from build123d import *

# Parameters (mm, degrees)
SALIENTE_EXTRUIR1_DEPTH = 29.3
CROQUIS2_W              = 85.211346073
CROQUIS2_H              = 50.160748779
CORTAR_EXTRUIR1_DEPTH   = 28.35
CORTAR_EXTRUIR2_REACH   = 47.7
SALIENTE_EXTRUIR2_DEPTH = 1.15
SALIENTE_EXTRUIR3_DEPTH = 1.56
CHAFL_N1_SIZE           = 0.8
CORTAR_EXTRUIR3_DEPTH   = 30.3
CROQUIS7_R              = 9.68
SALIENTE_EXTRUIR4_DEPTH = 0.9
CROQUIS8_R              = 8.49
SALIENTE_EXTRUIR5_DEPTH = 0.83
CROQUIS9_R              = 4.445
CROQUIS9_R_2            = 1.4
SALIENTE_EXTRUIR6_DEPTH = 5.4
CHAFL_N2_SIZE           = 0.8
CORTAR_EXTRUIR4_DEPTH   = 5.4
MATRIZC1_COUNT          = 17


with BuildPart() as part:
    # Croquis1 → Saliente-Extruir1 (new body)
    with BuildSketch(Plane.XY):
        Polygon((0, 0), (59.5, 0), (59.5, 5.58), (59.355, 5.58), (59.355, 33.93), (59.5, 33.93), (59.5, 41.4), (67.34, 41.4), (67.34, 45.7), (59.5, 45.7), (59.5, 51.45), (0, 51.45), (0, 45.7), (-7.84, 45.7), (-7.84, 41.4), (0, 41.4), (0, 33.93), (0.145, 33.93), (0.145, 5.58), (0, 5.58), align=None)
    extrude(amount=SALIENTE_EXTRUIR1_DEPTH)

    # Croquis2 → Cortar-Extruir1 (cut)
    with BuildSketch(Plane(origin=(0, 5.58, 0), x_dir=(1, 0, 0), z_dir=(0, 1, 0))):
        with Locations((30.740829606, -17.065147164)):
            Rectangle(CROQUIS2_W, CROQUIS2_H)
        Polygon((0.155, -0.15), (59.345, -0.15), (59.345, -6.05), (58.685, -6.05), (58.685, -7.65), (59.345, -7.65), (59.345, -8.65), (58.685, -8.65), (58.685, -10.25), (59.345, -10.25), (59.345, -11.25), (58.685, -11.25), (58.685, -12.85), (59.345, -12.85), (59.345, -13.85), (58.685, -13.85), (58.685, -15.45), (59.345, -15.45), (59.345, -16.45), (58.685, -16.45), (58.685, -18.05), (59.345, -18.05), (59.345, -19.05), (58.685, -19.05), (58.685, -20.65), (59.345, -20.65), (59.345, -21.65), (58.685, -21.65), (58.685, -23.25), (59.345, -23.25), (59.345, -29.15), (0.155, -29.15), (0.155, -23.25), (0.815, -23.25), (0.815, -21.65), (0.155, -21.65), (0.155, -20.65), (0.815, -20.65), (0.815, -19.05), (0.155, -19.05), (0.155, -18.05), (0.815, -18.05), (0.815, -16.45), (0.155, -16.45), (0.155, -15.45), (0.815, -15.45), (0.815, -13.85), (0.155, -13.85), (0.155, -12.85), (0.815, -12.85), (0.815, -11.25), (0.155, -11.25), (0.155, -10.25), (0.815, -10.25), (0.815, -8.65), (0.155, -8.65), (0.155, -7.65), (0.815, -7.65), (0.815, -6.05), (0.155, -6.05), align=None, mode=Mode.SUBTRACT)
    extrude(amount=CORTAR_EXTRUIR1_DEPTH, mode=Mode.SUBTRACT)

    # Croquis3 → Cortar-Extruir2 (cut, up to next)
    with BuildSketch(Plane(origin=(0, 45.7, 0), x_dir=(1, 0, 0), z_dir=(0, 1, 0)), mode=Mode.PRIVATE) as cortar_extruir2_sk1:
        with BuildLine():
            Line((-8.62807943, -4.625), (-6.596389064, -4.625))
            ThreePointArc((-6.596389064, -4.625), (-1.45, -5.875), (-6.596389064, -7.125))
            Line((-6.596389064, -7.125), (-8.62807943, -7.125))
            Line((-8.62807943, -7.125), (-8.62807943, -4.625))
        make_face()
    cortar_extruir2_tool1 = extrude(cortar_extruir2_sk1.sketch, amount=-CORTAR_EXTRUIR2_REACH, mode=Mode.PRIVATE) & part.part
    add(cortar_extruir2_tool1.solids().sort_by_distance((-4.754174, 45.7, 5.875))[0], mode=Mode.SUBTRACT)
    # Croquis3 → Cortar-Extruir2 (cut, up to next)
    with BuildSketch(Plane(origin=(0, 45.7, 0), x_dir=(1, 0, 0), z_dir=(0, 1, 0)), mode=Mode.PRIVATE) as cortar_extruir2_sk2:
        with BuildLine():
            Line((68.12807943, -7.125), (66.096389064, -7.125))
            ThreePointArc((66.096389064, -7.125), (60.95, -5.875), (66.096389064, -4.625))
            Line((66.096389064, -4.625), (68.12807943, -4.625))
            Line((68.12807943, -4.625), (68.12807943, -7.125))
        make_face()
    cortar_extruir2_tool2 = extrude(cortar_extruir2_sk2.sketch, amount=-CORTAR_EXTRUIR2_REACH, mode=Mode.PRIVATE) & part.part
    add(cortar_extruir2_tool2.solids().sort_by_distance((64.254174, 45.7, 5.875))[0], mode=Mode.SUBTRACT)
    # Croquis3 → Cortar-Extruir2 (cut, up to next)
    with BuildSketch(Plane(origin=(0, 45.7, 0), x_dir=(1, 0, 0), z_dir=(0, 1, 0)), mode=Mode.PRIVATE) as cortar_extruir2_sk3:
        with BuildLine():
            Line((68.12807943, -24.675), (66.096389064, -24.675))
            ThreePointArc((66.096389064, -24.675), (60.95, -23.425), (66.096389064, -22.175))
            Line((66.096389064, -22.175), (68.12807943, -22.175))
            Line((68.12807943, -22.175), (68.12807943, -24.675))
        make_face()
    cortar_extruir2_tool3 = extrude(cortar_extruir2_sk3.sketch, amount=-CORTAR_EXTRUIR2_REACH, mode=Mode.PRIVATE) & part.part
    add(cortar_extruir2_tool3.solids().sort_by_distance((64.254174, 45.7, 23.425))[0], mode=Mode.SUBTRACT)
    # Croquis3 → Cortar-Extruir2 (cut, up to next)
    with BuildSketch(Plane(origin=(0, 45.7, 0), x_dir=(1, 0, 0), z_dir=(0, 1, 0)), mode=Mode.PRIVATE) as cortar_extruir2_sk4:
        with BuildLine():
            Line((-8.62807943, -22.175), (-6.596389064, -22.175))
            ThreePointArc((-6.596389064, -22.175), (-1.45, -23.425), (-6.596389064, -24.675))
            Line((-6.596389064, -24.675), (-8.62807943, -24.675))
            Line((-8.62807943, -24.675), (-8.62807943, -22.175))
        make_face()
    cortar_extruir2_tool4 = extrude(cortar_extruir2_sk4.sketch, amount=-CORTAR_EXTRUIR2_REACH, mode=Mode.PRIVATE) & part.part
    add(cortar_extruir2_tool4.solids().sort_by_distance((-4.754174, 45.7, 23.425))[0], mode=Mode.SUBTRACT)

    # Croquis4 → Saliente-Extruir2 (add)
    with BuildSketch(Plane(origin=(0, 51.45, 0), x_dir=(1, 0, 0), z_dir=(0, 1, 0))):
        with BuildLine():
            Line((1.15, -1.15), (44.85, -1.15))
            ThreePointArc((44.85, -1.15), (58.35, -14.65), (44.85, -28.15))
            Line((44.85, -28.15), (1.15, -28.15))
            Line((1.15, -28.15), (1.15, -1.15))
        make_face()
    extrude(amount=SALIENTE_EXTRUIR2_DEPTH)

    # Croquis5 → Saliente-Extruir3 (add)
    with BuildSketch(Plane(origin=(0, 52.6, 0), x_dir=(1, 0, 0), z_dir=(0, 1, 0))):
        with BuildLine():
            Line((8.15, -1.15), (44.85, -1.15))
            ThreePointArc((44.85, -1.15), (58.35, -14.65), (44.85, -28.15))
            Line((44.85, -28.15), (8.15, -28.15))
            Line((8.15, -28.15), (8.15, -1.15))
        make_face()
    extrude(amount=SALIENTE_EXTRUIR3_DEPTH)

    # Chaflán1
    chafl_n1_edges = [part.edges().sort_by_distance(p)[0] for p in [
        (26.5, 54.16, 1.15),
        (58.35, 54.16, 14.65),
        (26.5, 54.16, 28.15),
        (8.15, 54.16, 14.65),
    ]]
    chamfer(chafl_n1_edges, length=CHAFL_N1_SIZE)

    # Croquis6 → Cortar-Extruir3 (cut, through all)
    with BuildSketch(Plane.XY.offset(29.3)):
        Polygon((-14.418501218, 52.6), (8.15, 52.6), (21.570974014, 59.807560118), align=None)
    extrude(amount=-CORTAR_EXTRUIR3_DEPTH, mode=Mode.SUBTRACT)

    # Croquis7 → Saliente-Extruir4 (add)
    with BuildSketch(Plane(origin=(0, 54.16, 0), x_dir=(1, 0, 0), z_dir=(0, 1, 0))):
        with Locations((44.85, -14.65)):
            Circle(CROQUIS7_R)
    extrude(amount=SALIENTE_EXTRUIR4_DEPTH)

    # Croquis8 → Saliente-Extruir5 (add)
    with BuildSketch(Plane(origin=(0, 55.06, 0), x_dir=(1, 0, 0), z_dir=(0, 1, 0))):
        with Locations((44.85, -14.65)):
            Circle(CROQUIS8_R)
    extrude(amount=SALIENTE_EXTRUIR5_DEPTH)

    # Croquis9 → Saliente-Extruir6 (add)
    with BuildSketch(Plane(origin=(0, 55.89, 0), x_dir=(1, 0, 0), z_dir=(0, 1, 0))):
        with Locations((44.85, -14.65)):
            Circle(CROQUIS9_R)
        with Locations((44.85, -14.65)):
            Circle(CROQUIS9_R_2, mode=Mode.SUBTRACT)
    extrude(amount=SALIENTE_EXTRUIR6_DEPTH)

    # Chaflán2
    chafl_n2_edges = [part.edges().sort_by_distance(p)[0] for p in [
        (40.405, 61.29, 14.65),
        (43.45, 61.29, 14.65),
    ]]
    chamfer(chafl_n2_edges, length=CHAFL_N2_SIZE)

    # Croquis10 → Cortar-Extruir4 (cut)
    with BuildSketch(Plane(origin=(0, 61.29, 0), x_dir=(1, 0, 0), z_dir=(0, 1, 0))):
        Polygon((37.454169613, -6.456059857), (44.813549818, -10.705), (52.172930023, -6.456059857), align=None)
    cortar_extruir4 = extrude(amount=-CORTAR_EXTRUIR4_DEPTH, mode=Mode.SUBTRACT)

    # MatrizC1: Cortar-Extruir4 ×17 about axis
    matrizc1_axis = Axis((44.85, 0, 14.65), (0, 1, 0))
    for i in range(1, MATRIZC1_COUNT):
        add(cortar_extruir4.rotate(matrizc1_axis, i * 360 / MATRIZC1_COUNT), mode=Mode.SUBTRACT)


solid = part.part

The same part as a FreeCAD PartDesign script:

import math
import FreeCAD as App
import Part
import Sketcher
Q = App.Units.Quantity


def edges_at(feature, points):
    """Names of the edges that pass closest to the given points."""
    edges = feature.Shape.Edges
    near = lambda p: min(range(len(edges)), key=lambda i: edges[i].distToShape(Part.Vertex(*p))[0])
    return sorted({f"Edge{near(p) + 1}" for p in points})

doc = App.newDocument("Part")
body = doc.addObject("PartDesign::Body", "Body")

sketch1 = body.newObject("Sketcher::SketchObject", "Sketch")
sketch1.AttachmentSupport = (doc.getObject("XY_Plane"), [""])
sketch1.MapMode = "FlatFace"
sketch1.addGeometry(Part.LineSegment(App.Vector(0, 0, 0), App.Vector(59.5, 0, 0)), False)
sketch1.addGeometry(Part.LineSegment(App.Vector(59.5, 0, 0), App.Vector(59.5, 5.58, 0)), False)
sketch1.addGeometry(Part.LineSegment(App.Vector(59.5, 5.58, 0), App.Vector(59.355, 5.58, 0)), False)
sketch1.addGeometry(Part.LineSegment(App.Vector(59.355, 5.58, 0), App.Vector(59.355, 33.93, 0)), False)
sketch1.addGeometry(Part.LineSegment(App.Vector(59.355, 33.93, 0), App.Vector(59.5, 33.93, 0)), False)
sketch1.addGeometry(Part.LineSegment(App.Vector(59.5, 33.93, 0), App.Vector(59.5, 41.4, 0)), False)
sketch1.addGeometry(Part.LineSegment(App.Vector(59.5, 41.4, 0), App.Vector(67.34, 41.4, 0)), False)
sketch1.addGeometry(Part.LineSegment(App.Vector(67.34, 41.4, 0), App.Vector(67.34, 45.7, 0)), False)
sketch1.addGeometry(Part.LineSegment(App.Vector(67.34, 45.7, 0), App.Vector(59.5, 45.7, 0)), False)
sketch1.addGeometry(Part.LineSegment(App.Vector(59.5, 45.7, 0), App.Vector(59.5, 51.45, 0)), False)
sketch1.addGeometry(Part.LineSegment(App.Vector(59.5, 51.45, 0), App.Vector(0, 51.45, 0)), False)
sketch1.addGeometry(Part.LineSegment(App.Vector(0, 51.45, 0), App.Vector(0, 45.7, 0)), False)
sketch1.addGeometry(Part.LineSegment(App.Vector(0, 45.7, 0), App.Vector(-7.84, 45.7, 0)), False)
sketch1.addGeometry(Part.LineSegment(App.Vector(-7.84, 45.7, 0), App.Vector(-7.84, 41.4, 0)), False)
sketch1.addGeometry(Part.LineSegment(App.Vector(-7.84, 41.4, 0), App.Vector(0, 41.4, 0)), False)
sketch1.addGeometry(Part.LineSegment(App.Vector(0, 41.4, 0), App.Vector(0, 33.93, 0)), False)
sketch1.addGeometry(Part.LineSegment(App.Vector(0, 33.93, 0), App.Vector(0.145, 33.93, 0)), False)
sketch1.addGeometry(Part.LineSegment(App.Vector(0.145, 33.93, 0), App.Vector(0.145, 5.58, 0)), False)
sketch1.addGeometry(Part.LineSegment(App.Vector(0.145, 5.58, 0), App.Vector(0, 5.58, 0)), False)
sketch1.addGeometry(Part.LineSegment(App.Vector(0, 5.58, 0), App.Vector(0, 0, 0)), False)
sketch1.addConstraint(Sketcher.Constraint("Coincident", 0, 2, 1, 1))
sketch1.addConstraint(Sketcher.Constraint("Coincident", 1, 2, 2, 1))
sketch1.addConstraint(Sketcher.Constraint("Coincident", 2, 2, 3, 1))
sketch1.addConstraint(Sketcher.Constraint("Coincident", 3, 2, 4, 1))
sketch1.addConstraint(Sketcher.Constraint("Coincident", 4, 2, 5, 1))
sketch1.addConstraint(Sketcher.Constraint("Coincident", 5, 2, 6, 1))
sketch1.addConstraint(Sketcher.Constraint("Coincident", 6, 2, 7, 1))
sketch1.addConstraint(Sketcher.Constraint("Coincident", 7, 2, 8, 1))
sketch1.addConstraint(Sketcher.Constraint("Coincident", 8, 2, 9, 1))
sketch1.addConstraint(Sketcher.Constraint("Coincident", 9, 2, 10, 1))
sketch1.addConstraint(Sketcher.Constraint("Coincident", 10, 2, 11, 1))
sketch1.addConstraint(Sketcher.Constraint("Coincident", 11, 2, 12, 1))
sketch1.addConstraint(Sketcher.Constraint("Coincident", 12, 2, 13, 1))
sketch1.addConstraint(Sketcher.Constraint("Coincident", 13, 2, 14, 1))
sketch1.addConstraint(Sketcher.Constraint("Coincident", 14, 2, 15, 1))
sketch1.addConstraint(Sketcher.Constraint("Coincident", 15, 2, 16, 1))
sketch1.addConstraint(Sketcher.Constraint("Coincident", 16, 2, 17, 1))
sketch1.addConstraint(Sketcher.Constraint("Coincident", 17, 2, 18, 1))
sketch1.addConstraint(Sketcher.Constraint("Coincident", 18, 2, 19, 1))
sketch1.addConstraint(Sketcher.Constraint("Coincident", 19, 2, 0, 1))
sketch1.addConstraint(Sketcher.Constraint("Horizontal", 0))
sketch1.addConstraint(Sketcher.Constraint("Vertical", 1))
sketch1.addConstraint(Sketcher.Constraint("Horizontal", 2))
sketch1.addConstraint(Sketcher.Constraint("Vertical", 3))
sketch1.addConstraint(Sketcher.Constraint("Horizontal", 4))
sketch1.addConstraint(Sketcher.Constraint("Vertical", 5))
sketch1.addConstraint(Sketcher.Constraint("Horizontal", 6))
sketch1.addConstraint(Sketcher.Constraint("Vertical", 7))
sketch1.addConstraint(Sketcher.Constraint("Horizontal", 8))
sketch1.addConstraint(Sketcher.Constraint("Vertical", 9))
sketch1.addConstraint(Sketcher.Constraint("Horizontal", 10))
sketch1.addConstraint(Sketcher.Constraint("Vertical", 11))
sketch1.addConstraint(Sketcher.Constraint("Horizontal", 12))
sketch1.addConstraint(Sketcher.Constraint("Vertical", 13))
sketch1.addConstraint(Sketcher.Constraint("Horizontal", 14))
sketch1.addConstraint(Sketcher.Constraint("Vertical", 15))
sketch1.addConstraint(Sketcher.Constraint("Horizontal", 16))
sketch1.addConstraint(Sketcher.Constraint("Vertical", 17))
sketch1.addConstraint(Sketcher.Constraint("Horizontal", 18))
sketch1.addConstraint(Sketcher.Constraint("Vertical", 19))
sketch1.addConstraint(Sketcher.Constraint("Coincident", 19, 2, -1, 1))
sketch1.addConstraint(Sketcher.Constraint("PointOnObject", 10, 2, -2))
sketch1.addConstraint(Sketcher.Constraint("PointOnObject", 14, 2, -2))
sketch1.addConstraint(Sketcher.Constraint("Horizontal", 8, 2, 11, 2))
sketch1.addConstraint(Sketcher.Constraint("Horizontal", 6, 2, 13, 2))
sketch1.addConstraint(Sketcher.Constraint("Horizontal", 4, 2, 15, 2))
sketch1.addConstraint(Sketcher.Constraint("Horizontal", 2, 2, 17, 2))
sketch1.addConstraint(Sketcher.Constraint("Vertical", 1, 2, 4, 2))
sketch1.addConstraint(Sketcher.Constraint("Vertical", 5, 2, 8, 2))
sketch1.addConstraint(Sketcher.Constraint("Equal", 8, 12))
sketch1.addConstraint(Sketcher.Constraint("Equal", 4, 16))
sketch1.addConstraint(Sketcher.Constraint("DistanceX", 0, 1, 0, 2, Q("59.5 mm")))
sketch1.addConstraint(Sketcher.Constraint("DistanceY", 7, 1, 7, 2, Q("4.3 mm")))
sketch1.addConstraint(Sketcher.Constraint("DistanceX", 6, 1, 6, 2, Q("7.84 mm")))
sketch1.addConstraint(Sketcher.Constraint("DistanceY", 1, 1, 1, 2, Q("5.58 mm")))
sketch1.addConstraint(Sketcher.Constraint("DistanceY", 3, 1, 3, 2, Q("28.35 mm")))
sketch1.addConstraint(Sketcher.Constraint("DistanceY", 5, 1, 5, 2, Q("7.47 mm")))
sketch1.addConstraint(Sketcher.Constraint("DistanceY", 9, 1, 9, 2, Q("5.75 mm")))
sketch1.addConstraint(Sketcher.Constraint("DistanceX", 2, 2, 2, 1, Q("0.145 mm")))
pad1 = body.newObject("PartDesign::Pad", "Pad")
pad1.Profile = sketch1
pad1.Length = 29.3

sketch2 = body.newObject("Sketcher::SketchObject", "Sketch001")
sketch2.AttachmentSupport = (doc.getObject("XZ_Plane"), [""])
sketch2.MapMode = "FlatFace"
sketch2.AttachmentOffset = App.Placement(App.Vector(0, 0, -5.58), App.Rotation())
sketch2.addGeometry(Part.LineSegment(App.Vector(-11.864843, -8.015227, 0), App.Vector(-11.864843, 42.145522, 0)), False)
sketch2.addGeometry(Part.LineSegment(App.Vector(-11.864843, 42.145522, 0), App.Vector(73.346503, 42.145522, 0)), False)
sketch2.addGeometry(Part.LineSegment(App.Vector(73.346503, 42.145522, 0), App.Vector(73.346503, -8.015227, 0)), False)
sketch2.addGeometry(Part.LineSegment(App.Vector(73.346503, -8.015227, 0), App.Vector(-11.864843, -8.015227, 0)), False)
sketch2.addGeometry(Part.LineSegment(App.Vector(0.155, 6.05, 0), App.Vector(0.155, 0.15, 0)), False)
sketch2.addGeometry(Part.LineSegment(App.Vector(0.155, 0.15, 0), App.Vector(59.345, 0.15, 0)), False)
sketch2.addGeometry(Part.LineSegment(App.Vector(59.345, 0.15, 0), App.Vector(59.345, 6.05, 0)), False)
sketch2.addGeometry(Part.LineSegment(App.Vector(59.345, 6.05, 0), App.Vector(58.685, 6.05, 0)), False)
sketch2.addGeometry(Part.LineSegment(App.Vector(58.685, 6.05, 0), App.Vector(58.685, 7.65, 0)), False)
sketch2.addGeometry(Part.LineSegment(App.Vector(58.685, 7.65, 0), App.Vector(59.345, 7.65, 0)), False)
sketch2.addGeometry(Part.LineSegment(App.Vector(59.345, 7.65, 0), App.Vector(59.345, 8.65, 0)), False)
sketch2.addGeometry(Part.LineSegment(App.Vector(59.345, 8.65, 0), App.Vector(58.685, 8.65, 0)), False)
sketch2.addGeometry(Part.LineSegment(App.Vector(58.685, 8.65, 0), App.Vector(58.685, 10.25, 0)), False)
sketch2.addGeometry(Part.LineSegment(App.Vector(58.685, 10.25, 0), App.Vector(59.345, 10.25, 0)), False)
sketch2.addGeometry(Part.LineSegment(App.Vector(59.345, 10.25, 0), App.Vector(59.345, 11.25, 0)), False)
sketch2.addGeometry(Part.LineSegment(App.Vector(59.345, 11.25, 0), App.Vector(58.685, 11.25, 0)), False)
sketch2.addGeometry(Part.LineSegment(App.Vector(58.685, 11.25, 0), App.Vector(58.685, 12.85, 0)), False)
sketch2.addGeometry(Part.LineSegment(App.Vector(58.685, 12.85, 0), App.Vector(59.345, 12.85, 0)), False)
sketch2.addGeometry(Part.LineSegment(App.Vector(59.345, 12.85, 0), App.Vector(59.345, 13.85, 0)), False)
sketch2.addGeometry(Part.LineSegment(App.Vector(59.345, 13.85, 0), App.Vector(58.685, 13.85, 0)), False)
sketch2.addGeometry(Part.LineSegment(App.Vector(58.685, 13.85, 0), App.Vector(58.685, 15.45, 0)), False)
sketch2.addGeometry(Part.LineSegment(App.Vector(58.685, 15.45, 0), App.Vector(59.345, 15.45, 0)), False)
sketch2.addGeometry(Part.LineSegment(App.Vector(59.345, 15.45, 0), App.Vector(59.345, 16.45, 0)), False)
sketch2.addGeometry(Part.LineSegment(App.Vector(59.345, 16.45, 0), App.Vector(58.685, 16.45, 0)), False)
sketch2.addGeometry(Part.LineSegment(App.Vector(58.685, 16.45, 0), App.Vector(58.685, 18.05, 0)), False)
sketch2.addGeometry(Part.LineSegment(App.Vector(58.685, 18.05, 0), App.Vector(59.345, 18.05, 0)), False)
sketch2.addGeometry(Part.LineSegment(App.Vector(59.345, 18.05, 0), App.Vector(59.345, 19.05, 0)), False)
sketch2.addGeometry(Part.LineSegment(App.Vector(59.345, 19.05, 0), App.Vector(58.685, 19.05, 0)), False)
sketch2.addGeometry(Part.LineSegment(App.Vector(58.685, 19.05, 0), App.Vector(58.685, 20.65, 0)), False)
sketch2.addGeometry(Part.LineSegment(App.Vector(58.685, 20.65, 0), App.Vector(59.345, 20.65, 0)), False)
sketch2.addGeometry(Part.LineSegment(App.Vector(59.345, 20.65, 0), App.Vector(59.345, 21.65, 0)), False)
sketch2.addGeometry(Part.LineSegment(App.Vector(59.345, 21.65, 0), App.Vector(58.685, 21.65, 0)), False)
sketch2.addGeometry(Part.LineSegment(App.Vector(58.685, 21.65, 0), App.Vector(58.685, 23.25, 0)), False)
sketch2.addGeometry(Part.LineSegment(App.Vector(58.685, 23.25, 0), App.Vector(59.345, 23.25, 0)), False)
sketch2.addGeometry(Part.LineSegment(App.Vector(59.345, 23.25, 0), App.Vector(59.345, 29.15, 0)), False)
sketch2.addGeometry(Part.LineSegment(App.Vector(59.345, 29.15, 0), App.Vector(0.155, 29.15, 0)), False)
sketch2.addGeometry(Part.LineSegment(App.Vector(0.155, 29.15, 0), App.Vector(0.155, 23.25, 0)), False)
sketch2.addGeometry(Part.LineSegment(App.Vector(0.155, 23.25, 0), App.Vector(0.815, 23.25, 0)), False)
sketch2.addGeometry(Part.LineSegment(App.Vector(0.815, 23.25, 0), App.Vector(0.815, 21.65, 0)), False)
sketch2.addGeometry(Part.LineSegment(App.Vector(0.815, 21.65, 0), App.Vector(0.155, 21.65, 0)), False)
sketch2.addGeometry(Part.LineSegment(App.Vector(0.155, 21.65, 0), App.Vector(0.155, 20.65, 0)), False)
sketch2.addGeometry(Part.LineSegment(App.Vector(0.155, 20.65, 0), App.Vector(0.815, 20.65, 0)), False)
sketch2.addGeometry(Part.LineSegment(App.Vector(0.815, 20.65, 0), App.Vector(0.815, 19.05, 0)), False)
sketch2.addGeometry(Part.LineSegment(App.Vector(0.815, 19.05, 0), App.Vector(0.155, 19.05, 0)), False)
sketch2.addGeometry(Part.LineSegment(App.Vector(0.155, 19.05, 0), App.Vector(0.155, 18.05, 0)), False)
sketch2.addGeometry(Part.LineSegment(App.Vector(0.155, 18.05, 0), App.Vector(0.815, 18.05, 0)), False)
sketch2.addGeometry(Part.LineSegment(App.Vector(0.815, 18.05, 0), App.Vector(0.815, 16.45, 0)), False)
sketch2.addGeometry(Part.LineSegment(App.Vector(0.815, 16.45, 0), App.Vector(0.155, 16.45, 0)), False)
sketch2.addGeometry(Part.LineSegment(App.Vector(0.155, 16.45, 0), App.Vector(0.155, 15.45, 0)), False)
sketch2.addGeometry(Part.LineSegment(App.Vector(0.155, 15.45, 0), App.Vector(0.815, 15.45, 0)), False)
sketch2.addGeometry(Part.LineSegment(App.Vector(0.815, 15.45, 0), App.Vector(0.815, 13.85, 0)), False)
sketch2.addGeometry(Part.LineSegment(App.Vector(0.815, 13.85, 0), App.Vector(0.155, 13.85, 0)), False)
sketch2.addGeometry(Part.LineSegment(App.Vector(0.155, 13.85, 0), App.Vector(0.155, 12.85, 0)), False)
sketch2.addGeometry(Part.LineSegment(App.Vector(0.155, 12.85, 0), App.Vector(0.815, 12.85, 0)), False)
sketch2.addGeometry(Part.LineSegment(App.Vector(0.815, 12.85, 0), App.Vector(0.815, 11.25, 0)), False)
sketch2.addGeometry(Part.LineSegment(App.Vector(0.815, 11.25, 0), App.Vector(0.155, 11.25, 0)), False)
sketch2.addGeometry(Part.LineSegment(App.Vector(0.155, 11.25, 0), App.Vector(0.155, 10.25, 0)), False)
sketch2.addGeometry(Part.LineSegment(App.Vector(0.155, 10.25, 0), App.Vector(0.815, 10.25, 0)), False)
sketch2.addGeometry(Part.LineSegment(App.Vector(0.815, 10.25, 0), App.Vector(0.815, 8.65, 0)), False)
sketch2.addGeometry(Part.LineSegment(App.Vector(0.815, 8.65, 0), App.Vector(0.155, 8.65, 0)), False)
sketch2.addGeometry(Part.LineSegment(App.Vector(0.155, 8.65, 0), App.Vector(0.155, 7.65, 0)), False)
sketch2.addGeometry(Part.LineSegment(App.Vector(0.155, 7.65, 0), App.Vector(0.815, 7.65, 0)), False)
sketch2.addGeometry(Part.LineSegment(App.Vector(0.815, 7.65, 0), App.Vector(0.815, 6.05, 0)), False)
sketch2.addGeometry(Part.LineSegment(App.Vector(0.815, 6.05, 0), App.Vector(0.155, 6.05, 0)), False)
sketch2.addConstraint(Sketcher.Constraint("Coincident", 0, 2, 1, 1))
sketch2.addConstraint(Sketcher.Constraint("Coincident", 1, 2, 2, 1))
sketch2.addConstraint(Sketcher.Constraint("Coincident", 2, 2, 3, 1))
sketch2.addConstraint(Sketcher.Constraint("Coincident", 3, 2, 0, 1))
sketch2.addConstraint(Sketcher.Constraint("Coincident", 4, 2, 5, 1))
sketch2.addConstraint(Sketcher.Constraint("Coincident", 5, 2, 6, 1))
sketch2.addConstraint(Sketcher.Constraint("Coincident", 6, 2, 7, 1))
sketch2.addConstraint(Sketcher.Constraint("Coincident", 7, 2, 8, 1))
sketch2.addConstraint(Sketcher.Constraint("Coincident", 8, 2, 9, 1))
sketch2.addConstraint(Sketcher.Constraint("Coincident", 9, 2, 10, 1))
sketch2.addConstraint(Sketcher.Constraint("Coincident", 10, 2, 11, 1))
sketch2.addConstraint(Sketcher.Constraint("Coincident", 11, 2, 12, 1))
sketch2.addConstraint(Sketcher.Constraint("Coincident", 12, 2, 13, 1))
sketch2.addConstraint(Sketcher.Constraint("Coincident", 13, 2, 14, 1))
sketch2.addConstraint(Sketcher.Constraint("Coincident", 14, 2, 15, 1))
sketch2.addConstraint(Sketcher.Constraint("Coincident", 15, 2, 16, 1))
sketch2.addConstraint(Sketcher.Constraint("Coincident", 16, 2, 17, 1))
sketch2.addConstraint(Sketcher.Constraint("Coincident", 17, 2, 18, 1))
sketch2.addConstraint(Sketcher.Constraint("Coincident", 18, 2, 19, 1))
sketch2.addConstraint(Sketcher.Constraint("Coincident", 19, 2, 20, 1))
sketch2.addConstraint(Sketcher.Constraint("Coincident", 20, 2, 21, 1))
sketch2.addConstraint(Sketcher.Constraint("Coincident", 21, 2, 22, 1))
sketch2.addConstraint(Sketcher.Constraint("Coincident", 22, 2, 23, 1))
sketch2.addConstraint(Sketcher.Constraint("Coincident", 23, 2, 24, 1))
sketch2.addConstraint(Sketcher.Constraint("Coincident", 24, 2, 25, 1))
sketch2.addConstraint(Sketcher.Constraint("Coincident", 25, 2, 26, 1))
sketch2.addConstraint(Sketcher.Constraint("Coincident", 26, 2, 27, 1))
sketch2.addConstraint(Sketcher.Constraint("Coincident", 27, 2, 28, 1))
sketch2.addConstraint(Sketcher.Constraint("Coincident", 28, 2, 29, 1))
sketch2.addConstraint(Sketcher.Constraint("Coincident", 29, 2, 30, 1))
sketch2.addConstraint(Sketcher.Constraint("Coincident", 30, 2, 31, 1))
sketch2.addConstraint(Sketcher.Constraint("Coincident", 31, 2, 32, 1))
sketch2.addConstraint(Sketcher.Constraint("Coincident", 32, 2, 33, 1))
sketch2.addConstraint(Sketcher.Constraint("Coincident", 33, 2, 34, 1))
sketch2.addConstraint(Sketcher.Constraint("Coincident", 34, 2, 35, 1))
sketch2.addConstraint(Sketcher.Constraint("Coincident", 35, 2, 36, 1))
sketch2.addConstraint(Sketcher.Constraint("Coincident", 36, 2, 37, 1))
sketch2.addConstraint(Sketcher.Constraint("Coincident", 37, 2, 38, 1))
sketch2.addConstraint(Sketcher.Constraint("Coincident", 38, 2, 39, 1))
sketch2.addConstraint(Sketcher.Constraint("Coincident", 39, 2, 40, 1))
sketch2.addConstraint(Sketcher.Constraint("Coincident", 40, 2, 41, 1))
sketch2.addConstraint(Sketcher.Constraint("Coincident", 41, 2, 42, 1))
sketch2.addConstraint(Sketcher.Constraint("Coincident", 42, 2, 43, 1))
sketch2.addConstraint(Sketcher.Constraint("Coincident", 43, 2, 44, 1))
sketch2.addConstraint(Sketcher.Constraint("Coincident", 44, 2, 45, 1))
sketch2.addConstraint(Sketcher.Constraint("Coincident", 45, 2, 46, 1))
sketch2.addConstraint(Sketcher.Constraint("Coincident", 46, 2, 47, 1))
sketch2.addConstraint(Sketcher.Constraint("Coincident", 47, 2, 48, 1))
sketch2.addConstraint(Sketcher.Constraint("Coincident", 48, 2, 49, 1))
sketch2.addConstraint(Sketcher.Constraint("Coincident", 49, 2, 50, 1))
sketch2.addConstraint(Sketcher.Constraint("Coincident", 50, 2, 51, 1))
sketch2.addConstraint(Sketcher.Constraint("Coincident", 51, 2, 52, 1))
sketch2.addConstraint(Sketcher.Constraint("Coincident", 52, 2, 53, 1))
sketch2.addConstraint(Sketcher.Constraint("Coincident", 53, 2, 54, 1))
sketch2.addConstraint(Sketcher.Constraint("Coincident", 54, 2, 55, 1))
sketch2.addConstraint(Sketcher.Constraint("Coincident", 55, 2, 56, 1))
sketch2.addConstraint(Sketcher.Constraint("Coincident", 56, 2, 57, 1))
sketch2.addConstraint(Sketcher.Constraint("Coincident", 57, 2, 58, 1))
sketch2.addConstraint(Sketcher.Constraint("Coincident", 58, 2, 59, 1))
sketch2.addConstraint(Sketcher.Constraint("Coincident", 59, 2, 60, 1))
sketch2.addConstraint(Sketcher.Constraint("Coincident", 60, 2, 61, 1))
sketch2.addConstraint(Sketcher.Constraint("Coincident", 61, 2, 62, 1))
sketch2.addConstraint(Sketcher.Constraint("Coincident", 62, 2, 63, 1))
sketch2.addConstraint(Sketcher.Constraint("Coincident", 63, 2, 4, 1))
sketch2.addConstraint(Sketcher.Constraint("Vertical", 0))
sketch2.addConstraint(Sketcher.Constraint("Horizontal", 1))
sketch2.addConstraint(Sketcher.Constraint("Vertical", 2))
sketch2.addConstraint(Sketcher.Constraint("Horizontal", 3))
sketch2.addConstraint(Sketcher.Constraint("Vertical", 4))
sketch2.addConstraint(Sketcher.Constraint("Horizontal", 5))
sketch2.addConstraint(Sketcher.Constraint("Vertical", 6))
sketch2.addConstraint(Sketcher.Constraint("Horizontal", 7))
sketch2.addConstraint(Sketcher.Constraint("Vertical", 8))
sketch2.addConstraint(Sketcher.Constraint("Horizontal", 9))
sketch2.addConstraint(Sketcher.Constraint("Vertical", 10))
sketch2.addConstraint(Sketcher.Constraint("Horizontal", 11))
sketch2.addConstraint(Sketcher.Constraint("Vertical", 12))
sketch2.addConstraint(Sketcher.Constraint("Horizontal", 13))
sketch2.addConstraint(Sketcher.Constraint("Vertical", 14))
sketch2.addConstraint(Sketcher.Constraint("Horizontal", 15))
sketch2.addConstraint(Sketcher.Constraint("Vertical", 16))
sketch2.addConstraint(Sketcher.Constraint("Horizontal", 17))
sketch2.addConstraint(Sketcher.Constraint("Vertical", 18))
sketch2.addConstraint(Sketcher.Constraint("Horizontal", 19))
sketch2.addConstraint(Sketcher.Constraint("Vertical", 20))
sketch2.addConstraint(Sketcher.Constraint("Horizontal", 21))
sketch2.addConstraint(Sketcher.Constraint("Vertical", 22))
sketch2.addConstraint(Sketcher.Constraint("Horizontal", 23))
sketch2.addConstraint(Sketcher.Constraint("Vertical", 24))
sketch2.addConstraint(Sketcher.Constraint("Horizontal", 25))
sketch2.addConstraint(Sketcher.Constraint("Vertical", 26))
sketch2.addConstraint(Sketcher.Constraint("Horizontal", 27))
sketch2.addConstraint(Sketcher.Constraint("Vertical", 28))
sketch2.addConstraint(Sketcher.Constraint("Horizontal", 29))
sketch2.addConstraint(Sketcher.Constraint("Vertical", 30))
sketch2.addConstraint(Sketcher.Constraint("Horizontal", 31))
sketch2.addConstraint(Sketcher.Constraint("Vertical", 32))
sketch2.addConstraint(Sketcher.Constraint("Horizontal", 33))
sketch2.addConstraint(Sketcher.Constraint("Vertical", 34))
sketch2.addConstraint(Sketcher.Constraint("Horizontal", 35))
sketch2.addConstraint(Sketcher.Constraint("Vertical", 36))
sketch2.addConstraint(Sketcher.Constraint("Horizontal", 37))
sketch2.addConstraint(Sketcher.Constraint("Vertical", 38))
sketch2.addConstraint(Sketcher.Constraint("Horizontal", 39))
sketch2.addConstraint(Sketcher.Constraint("Vertical", 40))
sketch2.addConstraint(Sketcher.Constraint("Horizontal", 41))
sketch2.addConstraint(Sketcher.Constraint("Vertical", 42))
sketch2.addConstraint(Sketcher.Constraint("Horizontal", 43))
sketch2.addConstraint(Sketcher.Constraint("Vertical", 44))
sketch2.addConstraint(Sketcher.Constraint("Horizontal", 45))
sketch2.addConstraint(Sketcher.Constraint("Vertical", 46))
sketch2.addConstraint(Sketcher.Constraint("Horizontal", 47))
sketch2.addConstraint(Sketcher.Constraint("Vertical", 48))
sketch2.addConstraint(Sketcher.Constraint("Horizontal", 49))
sketch2.addConstraint(Sketcher.Constraint("Vertical", 50))
sketch2.addConstraint(Sketcher.Constraint("Horizontal", 51))
sketch2.addConstraint(Sketcher.Constraint("Vertical", 52))
sketch2.addConstraint(Sketcher.Constraint("Horizontal", 53))
sketch2.addConstraint(Sketcher.Constraint("Vertical", 54))
sketch2.addConstraint(Sketcher.Constraint("Horizontal", 55))
sketch2.addConstraint(Sketcher.Constraint("Vertical", 56))
sketch2.addConstraint(Sketcher.Constraint("Horizontal", 57))
sketch2.addConstraint(Sketcher.Constraint("Vertical", 58))
sketch2.addConstraint(Sketcher.Constraint("Horizontal", 59))
sketch2.addConstraint(Sketcher.Constraint("Vertical", 60))
sketch2.addConstraint(Sketcher.Constraint("Horizontal", 61))
sketch2.addConstraint(Sketcher.Constraint("Vertical", 62))
sketch2.addConstraint(Sketcher.Constraint("Horizontal", 63))
sketch2.addConstraint(Sketcher.Constraint("Horizontal", 33, 2, 36, 2))
sketch2.addConstraint(Sketcher.Constraint("Horizontal", 31, 2, 38, 2))
sketch2.addConstraint(Sketcher.Constraint("Horizontal", 29, 2, 40, 2))
sketch2.addConstraint(Sketcher.Constraint("Horizontal", 27, 2, 42, 2))
sketch2.addConstraint(Sketcher.Constraint("Horizontal", 25, 2, 44, 2))
sketch2.addConstraint(Sketcher.Constraint("Horizontal", 23, 2, 46, 2))
sketch2.addConstraint(Sketcher.Constraint("Horizontal", 21, 2, 48, 2))
sketch2.addConstraint(Sketcher.Constraint("Horizontal", 19, 2, 50, 2))
sketch2.addConstraint(Sketcher.Constraint("Horizontal", 17, 2, 52, 2))
sketch2.addConstraint(Sketcher.Constraint("Horizontal", 15, 2, 54, 2))
sketch2.addConstraint(Sketcher.Constraint("Horizontal", 13, 2, 56, 2))
sketch2.addConstraint(Sketcher.Constraint("Horizontal", 11, 2, 58, 2))
sketch2.addConstraint(Sketcher.Constraint("Horizontal", 9, 2, 60, 2))
sketch2.addConstraint(Sketcher.Constraint("Horizontal", 7, 2, 62, 2))
sketch2.addConstraint(Sketcher.Constraint("Vertical", 6, 2, 9, 2))
sketch2.addConstraint(Sketcher.Constraint("Vertical", 8, 2, 11, 2))
sketch2.addConstraint(Sketcher.Constraint("Vertical", 10, 2, 13, 2))
sketch2.addConstraint(Sketcher.Constraint("Vertical", 12, 2, 15, 2))
sketch2.addConstraint(Sketcher.Constraint("Vertical", 14, 2, 17, 2))
sketch2.addConstraint(Sketcher.Constraint("Vertical", 16, 2, 19, 2))
sketch2.addConstraint(Sketcher.Constraint("Vertical", 18, 2, 21, 2))
sketch2.addConstraint(Sketcher.Constraint("Vertical", 20, 2, 23, 2))
sketch2.addConstraint(Sketcher.Constraint("Vertical", 22, 2, 25, 2))
sketch2.addConstraint(Sketcher.Constraint("Vertical", 24, 2, 27, 2))
sketch2.addConstraint(Sketcher.Constraint("Vertical", 26, 2, 29, 2))
sketch2.addConstraint(Sketcher.Constraint("Vertical", 28, 2, 31, 2))
sketch2.addConstraint(Sketcher.Constraint("Vertical", 30, 2, 33, 2))
sketch2.addConstraint(Sketcher.Constraint("Vertical", 4, 2, 35, 2))
sketch2.addConstraint(Sketcher.Constraint("Vertical", 36, 2, 39, 2))
sketch2.addConstraint(Sketcher.Constraint("Vertical", 38, 2, 41, 2))
sketch2.addConstraint(Sketcher.Constraint("Vertical", 40, 2, 43, 2))
sketch2.addConstraint(Sketcher.Constraint("Vertical", 42, 2, 45, 2))
sketch2.addConstraint(Sketcher.Constraint("Vertical", 44, 2, 47, 2))
sketch2.addConstraint(Sketcher.Constraint("Vertical", 46, 2, 49, 2))
sketch2.addConstraint(Sketcher.Constraint("Vertical", 48, 2, 51, 2))
sketch2.addConstraint(Sketcher.Constraint("Vertical", 50, 2, 53, 2))
sketch2.addConstraint(Sketcher.Constraint("Vertical", 52, 2, 55, 2))
sketch2.addConstraint(Sketcher.Constraint("Vertical", 54, 2, 57, 2))
sketch2.addConstraint(Sketcher.Constraint("Vertical", 56, 2, 59, 2))
sketch2.addConstraint(Sketcher.Constraint("Vertical", 58, 2, 61, 2))
sketch2.addConstraint(Sketcher.Constraint("Equal", 33, 37))
sketch2.addConstraint(Sketcher.Constraint("Equal", 8, 12))
sketch2.addConstraint(Sketcher.Constraint("Equal", 10, 14))
sketch2.addConstraint(Sketcher.Constraint("Equal", 12, 16))
sketch2.addConstraint(Sketcher.Constraint("Equal", 14, 18))
sketch2.addConstraint(Sketcher.Constraint("Equal", 16, 20))
sketch2.addConstraint(Sketcher.Constraint("Equal", 18, 22))
sketch2.addConstraint(Sketcher.Constraint("Equal", 20, 24))
sketch2.addConstraint(Sketcher.Constraint("Equal", 22, 26))
sketch2.addConstraint(Sketcher.Constraint("Equal", 24, 28))
sketch2.addConstraint(Sketcher.Constraint("Equal", 26, 30))
sketch2.addConstraint(Sketcher.Constraint("Equal", 28, 32))
sketch2.addConstraint(Sketcher.Constraint("Equal", 6, 34))
sketch2.addConstraint(Sketcher.Constraint("DistanceY", 10, 1, 10, 2, Q("1 mm")))
sketch2.addConstraint(Sketcher.Constraint("DistanceY", 4, 2, 4, 1, Q("5.9 mm")))
sketch2.addConstraint(Sketcher.Constraint("DistanceY", 8, 1, 8, 2, Q("1.6 mm")))
sketch2.addConstraint(Sketcher.Constraint("DistanceX", 5, 1, 5, 2, Q("59.19 mm")))
sketch2.addConstraint(Sketcher.Constraint("DistanceX", 7, 2, 7, 1, Q("0.66 mm")))
sketch2.addConstraint(Sketcher.Constraint("DistanceY", -1, 1, 4, 2, Q("0.15 mm")))
sketch2.addConstraint(Sketcher.Constraint("DistanceX", -1, 1, 4, 2, Q("0.155 mm")))
sketch2.addConstraint(Sketcher.Constraint("DistanceY", 0, 1, 0, 2, Q("50.160749 mm")))
sketch2.addConstraint(Sketcher.Constraint("DistanceX", 1, 1, 1, 2, Q("85.211346 mm")))
sketch2.addConstraint(Sketcher.Constraint("DistanceY", -1, 1, 0, 2, Q("42.145522 mm")))
sketch2.addConstraint(Sketcher.Constraint("DistanceX", 0, 2, -1, 1, Q("11.864843 mm")))
pocket1 = body.newObject("PartDesign::Pocket", "Pocket")
pocket1.Profile = sketch2
pocket1.Length = 28.35

sketch3 = body.newObject("Sketcher::SketchObject", "Sketch002")
sketch3.AttachmentSupport = (doc.getObject("XZ_Plane"), [""])
sketch3.MapMode = "FlatFace"
sketch3.AttachmentOffset = App.Placement(App.Vector(0, 0, -45.7), App.Rotation())
sketch3.addGeometry(Part.LineSegment(App.Vector(-6.596389, 4.625, 0), App.Vector(-8.628079, 4.625, 0)), False)
sketch3.addGeometry(Part.LineSegment(App.Vector(-8.628079, 4.625, 0), App.Vector(-8.628079, 7.125, 0)), False)
sketch3.addGeometry(Part.LineSegment(App.Vector(-8.628079, 7.125, 0), App.Vector(-6.596389, 7.125, 0)), False)
sketch3.addGeometry(Part.ArcOfCircle(Part.Circle(App.Vector(-4.175, 5.875, 0), App.Vector(0, 0, 1), 2.725), math.radians(-152.695742), math.radians(152.695742)), False)
sketch3.addConstraint(Sketcher.Constraint("Coincident", 0, 2, 1, 1))
sketch3.addConstraint(Sketcher.Constraint("Coincident", 1, 2, 2, 1))
sketch3.addConstraint(Sketcher.Constraint("Coincident", 2, 2, 3, 2))
sketch3.addConstraint(Sketcher.Constraint("Coincident", 3, 1, 0, 1))
sketch3.addConstraint(Sketcher.Constraint("Horizontal", 0))
sketch3.addConstraint(Sketcher.Constraint("Vertical", 1))
sketch3.addConstraint(Sketcher.Constraint("Horizontal", 2))
sketch3.addConstraint(Sketcher.Constraint("Vertical", 2, 2, 3, 1))
sketch3.addConstraint(Sketcher.Constraint("DistanceY", 1, 1, 1, 2, Q("2.5 mm")))
sketch3.addConstraint(Sketcher.Constraint("Radius", 3, Q("2.725 mm")))
sketch3.addConstraint(Sketcher.Constraint("DistanceX", 3, 3, -1, 1, Q("4.175 mm")))
sketch3.addConstraint(Sketcher.Constraint("DistanceY", -1, 1, 3, 3, Q("5.875 mm")))
sketch3.addConstraint(Sketcher.Constraint("DistanceX", 0, 2, 0, 1, Q("2.03169 mm")))
pocket2 = body.newObject("PartDesign::Pocket", "Pocket001")
pocket2.Profile = sketch3
pocket2.Type = "UpToFirst"
pocket2.Reversed = True

sketch4 = body.newObject("Sketcher::SketchObject", "Sketch003")
sketch4.AttachmentSupport = (doc.getObject("XZ_Plane"), [""])
sketch4.MapMode = "FlatFace"
sketch4.AttachmentOffset = App.Placement(App.Vector(0, 0, -45.7), App.Rotation())
sketch4.addGeometry(Part.LineSegment(App.Vector(66.096389, 7.125, 0), App.Vector(68.128079, 7.125, 0)), False)
sketch4.addGeometry(Part.LineSegment(App.Vector(68.128079, 7.125, 0), App.Vector(68.128079, 4.625, 0)), False)
sketch4.addGeometry(Part.LineSegment(App.Vector(68.128079, 4.625, 0), App.Vector(66.096389, 4.625, 0)), False)
sketch4.addGeometry(Part.ArcOfCircle(Part.Circle(App.Vector(63.675, 5.875, 0), App.Vector(0, 0, 1), 2.725), math.radians(27.304258), math.radians(332.695742)), False)
sketch4.addConstraint(Sketcher.Constraint("Coincident", 0, 2, 1, 1))
sketch4.addConstraint(Sketcher.Constraint("Coincident", 1, 2, 2, 1))
sketch4.addConstraint(Sketcher.Constraint("Coincident", 2, 2, 3, 2))
sketch4.addConstraint(Sketcher.Constraint("Coincident", 3, 1, 0, 1))
sketch4.addConstraint(Sketcher.Constraint("Horizontal", 0))
sketch4.addConstraint(Sketcher.Constraint("Vertical", 1))
sketch4.addConstraint(Sketcher.Constraint("Horizontal", 2))
sketch4.addConstraint(Sketcher.Constraint("Vertical", 2, 2, 3, 1))
sketch4.addConstraint(Sketcher.Constraint("DistanceY", 1, 2, 1, 1, Q("2.5 mm")))
sketch4.addConstraint(Sketcher.Constraint("Radius", 3, Q("2.725 mm")))
sketch4.addConstraint(Sketcher.Constraint("DistanceX", -1, 1, 3, 3, Q("63.675 mm")))
sketch4.addConstraint(Sketcher.Constraint("DistanceY", -1, 1, 3, 3, Q("5.875 mm")))
sketch4.addConstraint(Sketcher.Constraint("DistanceX", 0, 1, 0, 2, Q("2.03169 mm")))
pocket3 = body.newObject("PartDesign::Pocket", "Pocket002")
pocket3.Profile = sketch4
pocket3.Type = "UpToFirst"
pocket3.Reversed = True

sketch5 = body.newObject("Sketcher::SketchObject", "Sketch004")
sketch5.AttachmentSupport = (doc.getObject("XZ_Plane"), [""])
sketch5.MapMode = "FlatFace"
sketch5.AttachmentOffset = App.Placement(App.Vector(0, 0, -45.7), App.Rotation())
sketch5.addGeometry(Part.LineSegment(App.Vector(66.096389, 24.675, 0), App.Vector(68.128079, 24.675, 0)), False)
sketch5.addGeometry(Part.LineSegment(App.Vector(68.128079, 24.675, 0), App.Vector(68.128079, 22.175, 0)), False)
sketch5.addGeometry(Part.LineSegment(App.Vector(68.128079, 22.175, 0), App.Vector(66.096389, 22.175, 0)), False)
sketch5.addGeometry(Part.ArcOfCircle(Part.Circle(App.Vector(63.675, 23.425, 0), App.Vector(0, 0, 1), 2.725), math.radians(27.304258), math.radians(332.695742)), False)
sketch5.addConstraint(Sketcher.Constraint("Coincident", 0, 2, 1, 1))
sketch5.addConstraint(Sketcher.Constraint("Coincident", 1, 2, 2, 1))
sketch5.addConstraint(Sketcher.Constraint("Coincident", 2, 2, 3, 2))
sketch5.addConstraint(Sketcher.Constraint("Coincident", 3, 1, 0, 1))
sketch5.addConstraint(Sketcher.Constraint("Horizontal", 0))
sketch5.addConstraint(Sketcher.Constraint("Vertical", 1))
sketch5.addConstraint(Sketcher.Constraint("Horizontal", 2))
sketch5.addConstraint(Sketcher.Constraint("Vertical", 2, 2, 3, 1))
sketch5.addConstraint(Sketcher.Constraint("DistanceY", 1, 2, 1, 1, Q("2.5 mm")))
sketch5.addConstraint(Sketcher.Constraint("Radius", 3, Q("2.725 mm")))
sketch5.addConstraint(Sketcher.Constraint("DistanceX", -1, 1, 3, 3, Q("63.675 mm")))
sketch5.addConstraint(Sketcher.Constraint("DistanceY", -1, 1, 3, 3, Q("23.425 mm")))
sketch5.addConstraint(Sketcher.Constraint("DistanceX", 0, 1, 0, 2, Q("2.03169 mm")))
pocket4 = body.newObject("PartDesign::Pocket", "Pocket003")
pocket4.Profile = sketch5
pocket4.Type = "UpToFirst"
pocket4.Reversed = True

sketch6 = body.newObject("Sketcher::SketchObject", "Sketch005")
sketch6.AttachmentSupport = (doc.getObject("XZ_Plane"), [""])
sketch6.MapMode = "FlatFace"
sketch6.AttachmentOffset = App.Placement(App.Vector(0, 0, -45.7), App.Rotation())
sketch6.addGeometry(Part.LineSegment(App.Vector(-6.596389, 22.175, 0), App.Vector(-8.628079, 22.175, 0)), False)
sketch6.addGeometry(Part.LineSegment(App.Vector(-8.628079, 22.175, 0), App.Vector(-8.628079, 24.675, 0)), False)
sketch6.addGeometry(Part.LineSegment(App.Vector(-8.628079, 24.675, 0), App.Vector(-6.596389, 24.675, 0)), False)
sketch6.addGeometry(Part.ArcOfCircle(Part.Circle(App.Vector(-4.175, 23.425, 0), App.Vector(0, 0, 1), 2.725), math.radians(-152.695742), math.radians(152.695742)), False)
sketch6.addConstraint(Sketcher.Constraint("Coincident", 0, 2, 1, 1))
sketch6.addConstraint(Sketcher.Constraint("Coincident", 1, 2, 2, 1))
sketch6.addConstraint(Sketcher.Constraint("Coincident", 2, 2, 3, 2))
sketch6.addConstraint(Sketcher.Constraint("Coincident", 3, 1, 0, 1))
sketch6.addConstraint(Sketcher.Constraint("Horizontal", 0))
sketch6.addConstraint(Sketcher.Constraint("Vertical", 1))
sketch6.addConstraint(Sketcher.Constraint("Horizontal", 2))
sketch6.addConstraint(Sketcher.Constraint("Vertical", 2, 2, 3, 1))
sketch6.addConstraint(Sketcher.Constraint("DistanceY", 1, 1, 1, 2, Q("2.5 mm")))
sketch6.addConstraint(Sketcher.Constraint("Radius", 3, Q("2.725 mm")))
sketch6.addConstraint(Sketcher.Constraint("DistanceX", 3, 3, -1, 1, Q("4.175 mm")))
sketch6.addConstraint(Sketcher.Constraint("DistanceY", -1, 1, 3, 3, Q("23.425 mm")))
sketch6.addConstraint(Sketcher.Constraint("DistanceX", 0, 2, 0, 1, Q("2.03169 mm")))
pocket5 = body.newObject("PartDesign::Pocket", "Pocket004")
pocket5.Profile = sketch6
pocket5.Type = "UpToFirst"
pocket5.Reversed = True

sketch7 = body.newObject("Sketcher::SketchObject", "Sketch006")
sketch7.AttachmentSupport = (doc.getObject("XZ_Plane"), [""])
sketch7.MapMode = "FlatFace"
sketch7.AttachmentOffset = App.Placement(App.Vector(0, 0, -51.45), App.Rotation())
sketch7.addGeometry(Part.LineSegment(App.Vector(44.85, 1.15, 0), App.Vector(1.15, 1.15, 0)), False)
sketch7.addGeometry(Part.LineSegment(App.Vector(1.15, 1.15, 0), App.Vector(1.15, 28.15, 0)), False)
sketch7.addGeometry(Part.LineSegment(App.Vector(1.15, 28.15, 0), App.Vector(44.85, 28.15, 0)), False)
sketch7.addGeometry(Part.ArcOfCircle(Part.Circle(App.Vector(44.85, 14.65, 0), App.Vector(0, 0, 1), 13.5), math.radians(-90), math.radians(90)), False)
sketch7.addConstraint(Sketcher.Constraint("Coincident", 0, 2, 1, 1))
sketch7.addConstraint(Sketcher.Constraint("Coincident", 1, 2, 2, 1))
sketch7.addConstraint(Sketcher.Constraint("Tangent", 2, 2, 3, 2))
sketch7.addConstraint(Sketcher.Constraint("Tangent", 3, 1, 0, 1))
sketch7.addConstraint(Sketcher.Constraint("Horizontal", 0))
sketch7.addConstraint(Sketcher.Constraint("Vertical", 1))
sketch7.addConstraint(Sketcher.Constraint("Horizontal", 2))
sketch7.addConstraint(Sketcher.Constraint("Radius", 3, Q("13.5 mm")))
sketch7.addConstraint(Sketcher.Constraint("DistanceX", 0, 2, 0, 1, Q("43.7 mm")))
sketch7.addConstraint(Sketcher.Constraint("DistanceX", -1, 1, 3, 3, Q("44.85 mm")))
sketch7.addConstraint(Sketcher.Constraint("DistanceY", -1, 1, 3, 3, Q("14.65 mm")))
pad2 = body.newObject("PartDesign::Pad", "Pad001")
pad2.Profile = sketch7
pad2.Length = 1.15
pad2.Reversed = True

sketch8 = body.newObject("Sketcher::SketchObject", "Sketch007")
sketch8.AttachmentSupport = (doc.getObject("XZ_Plane"), [""])
sketch8.MapMode = "FlatFace"
sketch8.AttachmentOffset = App.Placement(App.Vector(0, 0, -52.6), App.Rotation())
sketch8.addGeometry(Part.LineSegment(App.Vector(44.85, 1.15, 0), App.Vector(8.15, 1.15, 0)), False)
sketch8.addGeometry(Part.LineSegment(App.Vector(8.15, 1.15, 0), App.Vector(8.15, 28.15, 0)), False)
sketch8.addGeometry(Part.LineSegment(App.Vector(8.15, 28.15, 0), App.Vector(44.85, 28.15, 0)), False)
sketch8.addGeometry(Part.ArcOfCircle(Part.Circle(App.Vector(44.85, 14.65, 0), App.Vector(0, 0, 1), 13.5), math.radians(-90), math.radians(90)), False)
sketch8.addConstraint(Sketcher.Constraint("Coincident", 0, 2, 1, 1))
sketch8.addConstraint(Sketcher.Constraint("Coincident", 1, 2, 2, 1))
sketch8.addConstraint(Sketcher.Constraint("Tangent", 2, 2, 3, 2))
sketch8.addConstraint(Sketcher.Constraint("Tangent", 3, 1, 0, 1))
sketch8.addConstraint(Sketcher.Constraint("Horizontal", 0))
sketch8.addConstraint(Sketcher.Constraint("Vertical", 1))
sketch8.addConstraint(Sketcher.Constraint("Horizontal", 2))
sketch8.addConstraint(Sketcher.Constraint("Radius", 3, Q("13.5 mm")))
sketch8.addConstraint(Sketcher.Constraint("DistanceX", 0, 2, 0, 1, Q("36.7 mm")))
sketch8.addConstraint(Sketcher.Constraint("DistanceX", -1, 1, 3, 3, Q("44.85 mm")))
sketch8.addConstraint(Sketcher.Constraint("DistanceY", -1, 1, 3, 3, Q("14.65 mm")))
pad3 = body.newObject("PartDesign::Pad", "Pad002")
pad3.Profile = sketch8
pad3.Length = 1.56
pad3.Reversed = True
doc.recompute()

chamfer = body.newObject("PartDesign::Chamfer", "Chamfer")
chamfer.Base = (pad3, edges_at(pad3, [
    (26.5, 54.16, 1.15),
    (58.35, 54.16, 14.65),
    (26.5, 54.16, 28.15),
    (8.15, 54.16, 14.65),
]))
chamfer.Size = 0.8

sketch9 = body.newObject("Sketcher::SketchObject", "Sketch008")
sketch9.AttachmentSupport = (doc.getObject("XY_Plane"), [""])
sketch9.MapMode = "FlatFace"
sketch9.AttachmentOffset = App.Placement(App.Vector(0, 0, 29.3), App.Rotation())
sketch9.addGeometry(Part.LineSegment(App.Vector(-14.418501, 52.6, 0), App.Vector(8.15, 52.6, 0)), False)
sketch9.addGeometry(Part.LineSegment(App.Vector(8.15, 52.6, 0), App.Vector(21.570974, 59.80756, 0)), False)
sketch9.addGeometry(Part.LineSegment(App.Vector(21.570974, 59.80756, 0), App.Vector(-14.418501, 52.6, 0)), False)
sketch9.addConstraint(Sketcher.Constraint("Coincident", 0, 2, 1, 1))
sketch9.addConstraint(Sketcher.Constraint("Coincident", 1, 2, 2, 1))
sketch9.addConstraint(Sketcher.Constraint("Coincident", 2, 2, 0, 1))
sketch9.addConstraint(Sketcher.Constraint("Horizontal", 0))
sketch9.addConstraint(Sketcher.Constraint("DistanceY", -1, 1, 0, 2, Q("52.6 mm")))
sketch9.addConstraint(Sketcher.Constraint("DistanceX", -1, 1, 0, 2, Q("8.15 mm")))
sketch9.addConstraint(Sketcher.Constraint("DistanceX", 0, 1, 0, 2, Q("22.568501 mm")))
sketch9.addConstraint(Sketcher.Constraint("DistanceY", -1, 1, 1, 2, Q("59.80756 mm")))
sketch9.addConstraint(Sketcher.Constraint("Distance", 1, Q("15.233892 mm")))
pocket6 = body.newObject("PartDesign::Pocket", "Pocket005")
pocket6.Profile = sketch9
pocket6.Type = "ThroughAll"

sketch10 = body.newObject("Sketcher::SketchObject", "Sketch009")
sketch10.AttachmentSupport = (doc.getObject("XZ_Plane"), [""])
sketch10.MapMode = "FlatFace"
sketch10.AttachmentOffset = App.Placement(App.Vector(0, 0, -54.16), App.Rotation())
sketch10.addGeometry(Part.Circle(App.Vector(44.85, 14.65, 0), App.Vector(0, 0, 1), 9.68), False)
sketch10.addConstraint(Sketcher.Constraint("Diameter", 0, Q("19.36 mm")))
sketch10.addConstraint(Sketcher.Constraint("DistanceX", -1, 1, 0, 3, Q("44.85 mm")))
sketch10.addConstraint(Sketcher.Constraint("DistanceY", -1, 1, 0, 3, Q("14.65 mm")))
pad4 = body.newObject("PartDesign::Pad", "Pad003")
pad4.Profile = sketch10
pad4.Length = 0.9
pad4.Reversed = True

sketch11 = body.newObject("Sketcher::SketchObject", "Sketch010")
sketch11.AttachmentSupport = (doc.getObject("XZ_Plane"), [""])
sketch11.MapMode = "FlatFace"
sketch11.AttachmentOffset = App.Placement(App.Vector(0, 0, -55.06), App.Rotation())
sketch11.addGeometry(Part.Circle(App.Vector(44.85, 14.65, 0), App.Vector(0, 0, 1), 8.49), False)
sketch11.addConstraint(Sketcher.Constraint("Diameter", 0, Q("16.98 mm")))
sketch11.addConstraint(Sketcher.Constraint("DistanceX", -1, 1, 0, 3, Q("44.85 mm")))
sketch11.addConstraint(Sketcher.Constraint("DistanceY", -1, 1, 0, 3, Q("14.65 mm")))
pad5 = body.newObject("PartDesign::Pad", "Pad004")
pad5.Profile = sketch11
pad5.Length = 0.83
pad5.Reversed = True

sketch12 = body.newObject("Sketcher::SketchObject", "Sketch011")
sketch12.AttachmentSupport = (doc.getObject("XZ_Plane"), [""])
sketch12.MapMode = "FlatFace"
sketch12.AttachmentOffset = App.Placement(App.Vector(0, 0, -55.89), App.Rotation())
sketch12.addGeometry(Part.Circle(App.Vector(44.85, 14.65, 0), App.Vector(0, 0, 1), 4.445), False)
sketch12.addGeometry(Part.Circle(App.Vector(44.85, 14.65, 0), App.Vector(0, 0, 1), 1.4), False)
sketch12.addConstraint(Sketcher.Constraint("Coincident", 1, 3, 0, 3))
sketch12.addConstraint(Sketcher.Constraint("Diameter", 1, Q("2.8 mm")))
sketch12.addConstraint(Sketcher.Constraint("Diameter", 0, Q("8.89 mm")))
sketch12.addConstraint(Sketcher.Constraint("DistanceX", -1, 1, 0, 3, Q("44.85 mm")))
sketch12.addConstraint(Sketcher.Constraint("DistanceY", -1, 1, 0, 3, Q("14.65 mm")))
pad6 = body.newObject("PartDesign::Pad", "Pad005")
pad6.Profile = sketch12
pad6.Length = 5.4
pad6.Reversed = True
doc.recompute()

chamfer2 = body.newObject("PartDesign::Chamfer", "Chamfer001")
chamfer2.Base = (pad6, edges_at(pad6, [(40.405, 61.29, 14.65), (43.45, 61.29, 14.65)]))
chamfer2.Size = 0.8

sketch13 = body.newObject("Sketcher::SketchObject", "Sketch012")
sketch13.AttachmentSupport = (doc.getObject("XZ_Plane"), [""])
sketch13.MapMode = "FlatFace"
sketch13.AttachmentOffset = App.Placement(App.Vector(0, 0, -61.29), App.Rotation())
sketch13.addGeometry(Part.LineSegment(App.Vector(37.45417, 6.45606, 0), App.Vector(44.81355, 10.705, 0)), False)
sketch13.addGeometry(Part.LineSegment(App.Vector(44.81355, 10.705, 0), App.Vector(52.17293, 6.45606, 0)), False)
sketch13.addGeometry(Part.LineSegment(App.Vector(52.17293, 6.45606, 0), App.Vector(37.45417, 6.45606, 0)), False)
sketch13.addConstraint(Sketcher.Constraint("Coincident", 0, 2, 1, 1))
sketch13.addConstraint(Sketcher.Constraint("Coincident", 1, 2, 2, 1))
sketch13.addConstraint(Sketcher.Constraint("Coincident", 2, 2, 0, 1))
sketch13.addConstraint(Sketcher.Constraint("Horizontal", 2))
sketch13.addConstraint(Sketcher.Constraint("Equal", 0, 1))
sketch13.addConstraint(Sketcher.Constraint("Angle", 0, Q("30 deg")))
sketch13.addConstraint(Sketcher.Constraint("DistanceY", -1, 1, 0, 2, Q("10.705 mm")))
sketch13.addConstraint(Sketcher.Constraint("DistanceX", 2, 2, 2, 1, Q("14.71876 mm")))
sketch13.addConstraint(Sketcher.Constraint("DistanceX", -1, 1, 0, 2, Q("44.81355 mm")))
pocket7 = body.newObject("PartDesign::Pocket", "Pocket006")
pocket7.Profile = sketch13
pocket7.Length = 5.4
pocket7.Reversed = True
doc.recompute()

datumline = body.newObject("PartDesign::Line", "DatumLine")
datumline.Placement = App.Placement(App.Vector(44.85, 0, 14.65), App.Rotation(App.Vector(0, 0, 1), App.Vector(0, 1, 0)))
polarpattern = body.newObject("PartDesign::PolarPattern", "PolarPattern")
polarpattern.Originals = [pocket7]
polarpattern.Axis = (datumline, [""])
polarpattern.Angle = 360
polarpattern.Occurrences = 17
body.Tip = polarpattern

doc.recompute()
